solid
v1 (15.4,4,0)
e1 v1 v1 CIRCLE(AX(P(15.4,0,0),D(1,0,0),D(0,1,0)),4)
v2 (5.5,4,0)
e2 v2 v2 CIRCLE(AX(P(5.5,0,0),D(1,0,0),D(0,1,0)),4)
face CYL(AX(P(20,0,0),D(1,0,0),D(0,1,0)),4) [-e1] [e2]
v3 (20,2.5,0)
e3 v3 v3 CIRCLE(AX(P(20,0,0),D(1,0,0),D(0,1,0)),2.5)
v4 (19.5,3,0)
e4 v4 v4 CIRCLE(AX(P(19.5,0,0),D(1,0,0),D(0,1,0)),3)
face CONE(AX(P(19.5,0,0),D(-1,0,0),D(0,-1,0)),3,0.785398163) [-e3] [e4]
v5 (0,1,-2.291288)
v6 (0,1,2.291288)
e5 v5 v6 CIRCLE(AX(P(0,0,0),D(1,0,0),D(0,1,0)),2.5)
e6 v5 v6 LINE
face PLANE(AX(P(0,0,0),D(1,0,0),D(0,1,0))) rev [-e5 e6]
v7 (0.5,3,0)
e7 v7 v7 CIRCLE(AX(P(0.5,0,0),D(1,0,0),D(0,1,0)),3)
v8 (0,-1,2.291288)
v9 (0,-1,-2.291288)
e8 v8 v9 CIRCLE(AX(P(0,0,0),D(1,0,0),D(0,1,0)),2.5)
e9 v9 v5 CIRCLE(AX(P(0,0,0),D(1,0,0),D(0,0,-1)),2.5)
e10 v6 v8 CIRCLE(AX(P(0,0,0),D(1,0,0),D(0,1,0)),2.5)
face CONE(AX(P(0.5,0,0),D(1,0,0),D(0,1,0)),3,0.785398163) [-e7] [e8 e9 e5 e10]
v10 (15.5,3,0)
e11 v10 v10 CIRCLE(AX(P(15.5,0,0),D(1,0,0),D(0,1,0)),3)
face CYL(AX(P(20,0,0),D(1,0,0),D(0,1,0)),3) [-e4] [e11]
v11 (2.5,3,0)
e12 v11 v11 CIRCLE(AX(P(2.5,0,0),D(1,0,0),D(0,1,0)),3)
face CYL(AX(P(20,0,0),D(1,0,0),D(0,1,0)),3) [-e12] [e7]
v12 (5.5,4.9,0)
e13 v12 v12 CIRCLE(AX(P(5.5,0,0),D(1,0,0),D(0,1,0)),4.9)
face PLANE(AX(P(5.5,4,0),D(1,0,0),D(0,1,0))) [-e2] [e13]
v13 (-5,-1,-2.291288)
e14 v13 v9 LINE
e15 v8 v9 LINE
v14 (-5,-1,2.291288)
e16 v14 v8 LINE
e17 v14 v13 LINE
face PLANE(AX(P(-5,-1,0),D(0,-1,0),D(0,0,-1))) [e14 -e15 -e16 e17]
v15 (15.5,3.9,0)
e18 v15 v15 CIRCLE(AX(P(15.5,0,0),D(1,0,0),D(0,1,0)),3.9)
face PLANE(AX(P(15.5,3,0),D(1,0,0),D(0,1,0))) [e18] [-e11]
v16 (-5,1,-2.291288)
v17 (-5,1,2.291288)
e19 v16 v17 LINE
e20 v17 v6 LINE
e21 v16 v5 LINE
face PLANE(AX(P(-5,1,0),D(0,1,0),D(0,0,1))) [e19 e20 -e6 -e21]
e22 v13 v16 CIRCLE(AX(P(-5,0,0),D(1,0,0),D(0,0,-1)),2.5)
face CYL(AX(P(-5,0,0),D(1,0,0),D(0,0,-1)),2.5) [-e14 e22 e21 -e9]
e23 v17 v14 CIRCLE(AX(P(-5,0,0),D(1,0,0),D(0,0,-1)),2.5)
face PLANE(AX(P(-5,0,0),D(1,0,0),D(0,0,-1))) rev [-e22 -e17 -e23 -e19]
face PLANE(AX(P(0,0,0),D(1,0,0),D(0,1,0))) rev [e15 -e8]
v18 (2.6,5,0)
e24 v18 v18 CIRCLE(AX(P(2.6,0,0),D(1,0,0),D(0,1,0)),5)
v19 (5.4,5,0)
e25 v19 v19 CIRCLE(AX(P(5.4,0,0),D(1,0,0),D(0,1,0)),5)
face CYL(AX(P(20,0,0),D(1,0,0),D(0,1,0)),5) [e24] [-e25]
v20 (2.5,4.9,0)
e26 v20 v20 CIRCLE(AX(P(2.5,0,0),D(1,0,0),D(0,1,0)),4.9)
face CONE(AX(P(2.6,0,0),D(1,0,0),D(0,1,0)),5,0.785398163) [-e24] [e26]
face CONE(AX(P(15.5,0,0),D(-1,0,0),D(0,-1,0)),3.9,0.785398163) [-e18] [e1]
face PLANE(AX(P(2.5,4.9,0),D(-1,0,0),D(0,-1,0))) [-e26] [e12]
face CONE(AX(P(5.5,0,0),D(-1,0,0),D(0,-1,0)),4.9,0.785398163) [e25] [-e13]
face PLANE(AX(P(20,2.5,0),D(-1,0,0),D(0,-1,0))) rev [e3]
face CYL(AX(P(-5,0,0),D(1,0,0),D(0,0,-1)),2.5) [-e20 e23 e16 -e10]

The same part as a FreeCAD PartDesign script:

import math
import FreeCAD as App
import Part
import Sketcher
from FreeCAD import Vector
Q = App.Units.Quantity


def add_polygon(sketch, points):
    """Adds a closed chain of lines whose ends are joined by coincident constraints."""
    first, n = sketch.GeometryCount, len(points)
    for a, b in zip(points, points[1:] + points[:1]):
        sketch.addGeometry(Part.LineSegment(App.Vector(*a, 0), App.Vector(*b, 0)), False)
    for i in range(n):
        sketch.addConstraint(Sketcher.Constraint("Coincident", first + i, 2, first + (i + 1) % n, 1))

doc = App.newDocument("Part")
body = doc.addObject("PartDesign::Body", "Body")

# Sketch on XY plane
sketch1 = body.newObject("Sketcher::SketchObject", "Sketch")
sketch1.AttachmentSupport = (doc.getObject("XY_Plane"), [""])
sketch1.MapMode = "FlatFace"
add_polygon(sketch1, [(0, 2.5), (0, 0), (20, 0), (20, 2.5), (19.5, 3), (15.5, 3), (15.5, 3.9), (15.4, 4), (5.5, 4), (5.5, 4.9), (5.4, 5), (2.6, 5), (2.5, 4.9), (2.5, 3), (0.5, 3)])  # lines 0-14
sketch1.addConstraint([
    Sketcher.Constraint("Vertical", 0),
    Sketcher.Constraint("Horizontal", 1),
    Sketcher.Constraint("Vertical", 2),
    Sketcher.Constraint("Horizontal", 4),
    Sketcher.Constraint("Vertical", 5),
    Sketcher.Constraint("Horizontal", 7),
    Sketcher.Constraint("Vertical", 8),
    Sketcher.Constraint("Horizontal", 10),
    Sketcher.Constraint("Vertical", 12),
    Sketcher.Constraint("Horizontal", 13),
    Sketcher.Constraint("Coincident", 0, 2, -1, 1),
    Sketcher.Constraint("Parallel", 3, 6),
    Sketcher.Constraint("Parallel", 6, 9),
    Sketcher.Constraint("Perpendicular", 9, 11),
    Sketcher.Constraint("Parallel", 11, 14),
    Sketcher.Constraint("Horizontal", 8, 2, 11, 2),
    Sketcher.Constraint("Horizontal", 4, 2, 12, 2),
    Sketcher.Constraint("Horizontal", 2, 2, 14, 2),
    Sketcher.Constraint("Equal", 5, 8),
    Sketcher.Constraint("Equal", 6, 9),
    Sketcher.Constraint("Equal", 9, 11),
    Sketcher.Constraint("DistanceX", 1, 1, 1, 2, Q("20 mm")),
    Sketcher.Constraint("DistanceX", 4, 2, 4, 1, Q("4 mm")),
    Sketcher.Constraint("DistanceX", 13, 2, 13, 1, Q("2 mm")),
    Sketcher.Constraint("DistanceX", 7, 2, 7, 1, Q("9.9 mm")),
    Sketcher.Constraint("DistanceX", 10, 2, 10, 1, Q("2.8 mm")),
    Sketcher.Constraint("DistanceY", 0, 2, 0, 1, Q("2.5 mm")),
    Sketcher.Constraint("DistanceY", 5, 1, 5, 2, Q("0.9 mm")),
    Sketcher.Constraint("DistanceY", 12, 2, 12, 1, Q("1.9 mm")),
])
revolution = body.newObject("PartDesign::Revolution", "Revolution")
revolution.Profile = sketch1
revolution.ReferenceAxis = (sketch1, ["H_Axis"])
revolution.Angle = 360

# Sketch on YZ plane
sketch2 = body.newObject("Sketcher::SketchObject", "Sketch001")
sketch2.AttachmentSupport = (doc.getObject("YZ_Plane"), [""])
sketch2.MapMode = "FlatFace"
sketch2.addGeometry([
    Part.ArcOfCircle(Part.Circle(Vector(0, 0, 0), Vector(0, 0, 1), 2.5), math.radians(-114), math.radians(-66)),
    Part.LineSegment(Vector(1, -2.3, 0), Vector(1, 2.3, 0)),
    Part.ArcOfCircle(Part.Circle(Vector(0, 0, 0), Vector(0, 0, 1), 2.5), math.radians(66), math.radians(114)),
    Part.LineSegment(Vector(-1, 2.3, 0), Vector(-1, -2.3, 0)),
], False)
sketch2.addConstraint([
    Sketcher.Constraint("Coincident", 0, 2, 1, 1),
    Sketcher.Constraint("Coincident", 1, 2, 2, 1),
    Sketcher.Constraint("Coincident", 2, 2, 3, 1),
    Sketcher.Constraint("Coincident", 3, 2, 0, 1),
    Sketcher.Constraint("Vertical", 1),
    Sketcher.Constraint("Vertical", 3),
    Sketcher.Constraint("Coincident", 0, 3, -1, 1),
    Sketcher.Constraint("Coincident", 2, 3, -1, 1),
    Sketcher.Constraint("Equal", 0, 2),
    Sketcher.Constraint("Horizontal", 1, 2, 2, 2),
    Sketcher.Constraint("Radius", 0, Q("2.5 mm")),
    Sketcher.Constraint("DistanceX", -1, 1, 0, 2, Q("1 mm")),
])
pad1 = body.newObject("PartDesign::Pad", "Pad")
pad1.Profile = sketch2
pad1.Length = 5
pad1.Reversed = True

doc.recompute()
